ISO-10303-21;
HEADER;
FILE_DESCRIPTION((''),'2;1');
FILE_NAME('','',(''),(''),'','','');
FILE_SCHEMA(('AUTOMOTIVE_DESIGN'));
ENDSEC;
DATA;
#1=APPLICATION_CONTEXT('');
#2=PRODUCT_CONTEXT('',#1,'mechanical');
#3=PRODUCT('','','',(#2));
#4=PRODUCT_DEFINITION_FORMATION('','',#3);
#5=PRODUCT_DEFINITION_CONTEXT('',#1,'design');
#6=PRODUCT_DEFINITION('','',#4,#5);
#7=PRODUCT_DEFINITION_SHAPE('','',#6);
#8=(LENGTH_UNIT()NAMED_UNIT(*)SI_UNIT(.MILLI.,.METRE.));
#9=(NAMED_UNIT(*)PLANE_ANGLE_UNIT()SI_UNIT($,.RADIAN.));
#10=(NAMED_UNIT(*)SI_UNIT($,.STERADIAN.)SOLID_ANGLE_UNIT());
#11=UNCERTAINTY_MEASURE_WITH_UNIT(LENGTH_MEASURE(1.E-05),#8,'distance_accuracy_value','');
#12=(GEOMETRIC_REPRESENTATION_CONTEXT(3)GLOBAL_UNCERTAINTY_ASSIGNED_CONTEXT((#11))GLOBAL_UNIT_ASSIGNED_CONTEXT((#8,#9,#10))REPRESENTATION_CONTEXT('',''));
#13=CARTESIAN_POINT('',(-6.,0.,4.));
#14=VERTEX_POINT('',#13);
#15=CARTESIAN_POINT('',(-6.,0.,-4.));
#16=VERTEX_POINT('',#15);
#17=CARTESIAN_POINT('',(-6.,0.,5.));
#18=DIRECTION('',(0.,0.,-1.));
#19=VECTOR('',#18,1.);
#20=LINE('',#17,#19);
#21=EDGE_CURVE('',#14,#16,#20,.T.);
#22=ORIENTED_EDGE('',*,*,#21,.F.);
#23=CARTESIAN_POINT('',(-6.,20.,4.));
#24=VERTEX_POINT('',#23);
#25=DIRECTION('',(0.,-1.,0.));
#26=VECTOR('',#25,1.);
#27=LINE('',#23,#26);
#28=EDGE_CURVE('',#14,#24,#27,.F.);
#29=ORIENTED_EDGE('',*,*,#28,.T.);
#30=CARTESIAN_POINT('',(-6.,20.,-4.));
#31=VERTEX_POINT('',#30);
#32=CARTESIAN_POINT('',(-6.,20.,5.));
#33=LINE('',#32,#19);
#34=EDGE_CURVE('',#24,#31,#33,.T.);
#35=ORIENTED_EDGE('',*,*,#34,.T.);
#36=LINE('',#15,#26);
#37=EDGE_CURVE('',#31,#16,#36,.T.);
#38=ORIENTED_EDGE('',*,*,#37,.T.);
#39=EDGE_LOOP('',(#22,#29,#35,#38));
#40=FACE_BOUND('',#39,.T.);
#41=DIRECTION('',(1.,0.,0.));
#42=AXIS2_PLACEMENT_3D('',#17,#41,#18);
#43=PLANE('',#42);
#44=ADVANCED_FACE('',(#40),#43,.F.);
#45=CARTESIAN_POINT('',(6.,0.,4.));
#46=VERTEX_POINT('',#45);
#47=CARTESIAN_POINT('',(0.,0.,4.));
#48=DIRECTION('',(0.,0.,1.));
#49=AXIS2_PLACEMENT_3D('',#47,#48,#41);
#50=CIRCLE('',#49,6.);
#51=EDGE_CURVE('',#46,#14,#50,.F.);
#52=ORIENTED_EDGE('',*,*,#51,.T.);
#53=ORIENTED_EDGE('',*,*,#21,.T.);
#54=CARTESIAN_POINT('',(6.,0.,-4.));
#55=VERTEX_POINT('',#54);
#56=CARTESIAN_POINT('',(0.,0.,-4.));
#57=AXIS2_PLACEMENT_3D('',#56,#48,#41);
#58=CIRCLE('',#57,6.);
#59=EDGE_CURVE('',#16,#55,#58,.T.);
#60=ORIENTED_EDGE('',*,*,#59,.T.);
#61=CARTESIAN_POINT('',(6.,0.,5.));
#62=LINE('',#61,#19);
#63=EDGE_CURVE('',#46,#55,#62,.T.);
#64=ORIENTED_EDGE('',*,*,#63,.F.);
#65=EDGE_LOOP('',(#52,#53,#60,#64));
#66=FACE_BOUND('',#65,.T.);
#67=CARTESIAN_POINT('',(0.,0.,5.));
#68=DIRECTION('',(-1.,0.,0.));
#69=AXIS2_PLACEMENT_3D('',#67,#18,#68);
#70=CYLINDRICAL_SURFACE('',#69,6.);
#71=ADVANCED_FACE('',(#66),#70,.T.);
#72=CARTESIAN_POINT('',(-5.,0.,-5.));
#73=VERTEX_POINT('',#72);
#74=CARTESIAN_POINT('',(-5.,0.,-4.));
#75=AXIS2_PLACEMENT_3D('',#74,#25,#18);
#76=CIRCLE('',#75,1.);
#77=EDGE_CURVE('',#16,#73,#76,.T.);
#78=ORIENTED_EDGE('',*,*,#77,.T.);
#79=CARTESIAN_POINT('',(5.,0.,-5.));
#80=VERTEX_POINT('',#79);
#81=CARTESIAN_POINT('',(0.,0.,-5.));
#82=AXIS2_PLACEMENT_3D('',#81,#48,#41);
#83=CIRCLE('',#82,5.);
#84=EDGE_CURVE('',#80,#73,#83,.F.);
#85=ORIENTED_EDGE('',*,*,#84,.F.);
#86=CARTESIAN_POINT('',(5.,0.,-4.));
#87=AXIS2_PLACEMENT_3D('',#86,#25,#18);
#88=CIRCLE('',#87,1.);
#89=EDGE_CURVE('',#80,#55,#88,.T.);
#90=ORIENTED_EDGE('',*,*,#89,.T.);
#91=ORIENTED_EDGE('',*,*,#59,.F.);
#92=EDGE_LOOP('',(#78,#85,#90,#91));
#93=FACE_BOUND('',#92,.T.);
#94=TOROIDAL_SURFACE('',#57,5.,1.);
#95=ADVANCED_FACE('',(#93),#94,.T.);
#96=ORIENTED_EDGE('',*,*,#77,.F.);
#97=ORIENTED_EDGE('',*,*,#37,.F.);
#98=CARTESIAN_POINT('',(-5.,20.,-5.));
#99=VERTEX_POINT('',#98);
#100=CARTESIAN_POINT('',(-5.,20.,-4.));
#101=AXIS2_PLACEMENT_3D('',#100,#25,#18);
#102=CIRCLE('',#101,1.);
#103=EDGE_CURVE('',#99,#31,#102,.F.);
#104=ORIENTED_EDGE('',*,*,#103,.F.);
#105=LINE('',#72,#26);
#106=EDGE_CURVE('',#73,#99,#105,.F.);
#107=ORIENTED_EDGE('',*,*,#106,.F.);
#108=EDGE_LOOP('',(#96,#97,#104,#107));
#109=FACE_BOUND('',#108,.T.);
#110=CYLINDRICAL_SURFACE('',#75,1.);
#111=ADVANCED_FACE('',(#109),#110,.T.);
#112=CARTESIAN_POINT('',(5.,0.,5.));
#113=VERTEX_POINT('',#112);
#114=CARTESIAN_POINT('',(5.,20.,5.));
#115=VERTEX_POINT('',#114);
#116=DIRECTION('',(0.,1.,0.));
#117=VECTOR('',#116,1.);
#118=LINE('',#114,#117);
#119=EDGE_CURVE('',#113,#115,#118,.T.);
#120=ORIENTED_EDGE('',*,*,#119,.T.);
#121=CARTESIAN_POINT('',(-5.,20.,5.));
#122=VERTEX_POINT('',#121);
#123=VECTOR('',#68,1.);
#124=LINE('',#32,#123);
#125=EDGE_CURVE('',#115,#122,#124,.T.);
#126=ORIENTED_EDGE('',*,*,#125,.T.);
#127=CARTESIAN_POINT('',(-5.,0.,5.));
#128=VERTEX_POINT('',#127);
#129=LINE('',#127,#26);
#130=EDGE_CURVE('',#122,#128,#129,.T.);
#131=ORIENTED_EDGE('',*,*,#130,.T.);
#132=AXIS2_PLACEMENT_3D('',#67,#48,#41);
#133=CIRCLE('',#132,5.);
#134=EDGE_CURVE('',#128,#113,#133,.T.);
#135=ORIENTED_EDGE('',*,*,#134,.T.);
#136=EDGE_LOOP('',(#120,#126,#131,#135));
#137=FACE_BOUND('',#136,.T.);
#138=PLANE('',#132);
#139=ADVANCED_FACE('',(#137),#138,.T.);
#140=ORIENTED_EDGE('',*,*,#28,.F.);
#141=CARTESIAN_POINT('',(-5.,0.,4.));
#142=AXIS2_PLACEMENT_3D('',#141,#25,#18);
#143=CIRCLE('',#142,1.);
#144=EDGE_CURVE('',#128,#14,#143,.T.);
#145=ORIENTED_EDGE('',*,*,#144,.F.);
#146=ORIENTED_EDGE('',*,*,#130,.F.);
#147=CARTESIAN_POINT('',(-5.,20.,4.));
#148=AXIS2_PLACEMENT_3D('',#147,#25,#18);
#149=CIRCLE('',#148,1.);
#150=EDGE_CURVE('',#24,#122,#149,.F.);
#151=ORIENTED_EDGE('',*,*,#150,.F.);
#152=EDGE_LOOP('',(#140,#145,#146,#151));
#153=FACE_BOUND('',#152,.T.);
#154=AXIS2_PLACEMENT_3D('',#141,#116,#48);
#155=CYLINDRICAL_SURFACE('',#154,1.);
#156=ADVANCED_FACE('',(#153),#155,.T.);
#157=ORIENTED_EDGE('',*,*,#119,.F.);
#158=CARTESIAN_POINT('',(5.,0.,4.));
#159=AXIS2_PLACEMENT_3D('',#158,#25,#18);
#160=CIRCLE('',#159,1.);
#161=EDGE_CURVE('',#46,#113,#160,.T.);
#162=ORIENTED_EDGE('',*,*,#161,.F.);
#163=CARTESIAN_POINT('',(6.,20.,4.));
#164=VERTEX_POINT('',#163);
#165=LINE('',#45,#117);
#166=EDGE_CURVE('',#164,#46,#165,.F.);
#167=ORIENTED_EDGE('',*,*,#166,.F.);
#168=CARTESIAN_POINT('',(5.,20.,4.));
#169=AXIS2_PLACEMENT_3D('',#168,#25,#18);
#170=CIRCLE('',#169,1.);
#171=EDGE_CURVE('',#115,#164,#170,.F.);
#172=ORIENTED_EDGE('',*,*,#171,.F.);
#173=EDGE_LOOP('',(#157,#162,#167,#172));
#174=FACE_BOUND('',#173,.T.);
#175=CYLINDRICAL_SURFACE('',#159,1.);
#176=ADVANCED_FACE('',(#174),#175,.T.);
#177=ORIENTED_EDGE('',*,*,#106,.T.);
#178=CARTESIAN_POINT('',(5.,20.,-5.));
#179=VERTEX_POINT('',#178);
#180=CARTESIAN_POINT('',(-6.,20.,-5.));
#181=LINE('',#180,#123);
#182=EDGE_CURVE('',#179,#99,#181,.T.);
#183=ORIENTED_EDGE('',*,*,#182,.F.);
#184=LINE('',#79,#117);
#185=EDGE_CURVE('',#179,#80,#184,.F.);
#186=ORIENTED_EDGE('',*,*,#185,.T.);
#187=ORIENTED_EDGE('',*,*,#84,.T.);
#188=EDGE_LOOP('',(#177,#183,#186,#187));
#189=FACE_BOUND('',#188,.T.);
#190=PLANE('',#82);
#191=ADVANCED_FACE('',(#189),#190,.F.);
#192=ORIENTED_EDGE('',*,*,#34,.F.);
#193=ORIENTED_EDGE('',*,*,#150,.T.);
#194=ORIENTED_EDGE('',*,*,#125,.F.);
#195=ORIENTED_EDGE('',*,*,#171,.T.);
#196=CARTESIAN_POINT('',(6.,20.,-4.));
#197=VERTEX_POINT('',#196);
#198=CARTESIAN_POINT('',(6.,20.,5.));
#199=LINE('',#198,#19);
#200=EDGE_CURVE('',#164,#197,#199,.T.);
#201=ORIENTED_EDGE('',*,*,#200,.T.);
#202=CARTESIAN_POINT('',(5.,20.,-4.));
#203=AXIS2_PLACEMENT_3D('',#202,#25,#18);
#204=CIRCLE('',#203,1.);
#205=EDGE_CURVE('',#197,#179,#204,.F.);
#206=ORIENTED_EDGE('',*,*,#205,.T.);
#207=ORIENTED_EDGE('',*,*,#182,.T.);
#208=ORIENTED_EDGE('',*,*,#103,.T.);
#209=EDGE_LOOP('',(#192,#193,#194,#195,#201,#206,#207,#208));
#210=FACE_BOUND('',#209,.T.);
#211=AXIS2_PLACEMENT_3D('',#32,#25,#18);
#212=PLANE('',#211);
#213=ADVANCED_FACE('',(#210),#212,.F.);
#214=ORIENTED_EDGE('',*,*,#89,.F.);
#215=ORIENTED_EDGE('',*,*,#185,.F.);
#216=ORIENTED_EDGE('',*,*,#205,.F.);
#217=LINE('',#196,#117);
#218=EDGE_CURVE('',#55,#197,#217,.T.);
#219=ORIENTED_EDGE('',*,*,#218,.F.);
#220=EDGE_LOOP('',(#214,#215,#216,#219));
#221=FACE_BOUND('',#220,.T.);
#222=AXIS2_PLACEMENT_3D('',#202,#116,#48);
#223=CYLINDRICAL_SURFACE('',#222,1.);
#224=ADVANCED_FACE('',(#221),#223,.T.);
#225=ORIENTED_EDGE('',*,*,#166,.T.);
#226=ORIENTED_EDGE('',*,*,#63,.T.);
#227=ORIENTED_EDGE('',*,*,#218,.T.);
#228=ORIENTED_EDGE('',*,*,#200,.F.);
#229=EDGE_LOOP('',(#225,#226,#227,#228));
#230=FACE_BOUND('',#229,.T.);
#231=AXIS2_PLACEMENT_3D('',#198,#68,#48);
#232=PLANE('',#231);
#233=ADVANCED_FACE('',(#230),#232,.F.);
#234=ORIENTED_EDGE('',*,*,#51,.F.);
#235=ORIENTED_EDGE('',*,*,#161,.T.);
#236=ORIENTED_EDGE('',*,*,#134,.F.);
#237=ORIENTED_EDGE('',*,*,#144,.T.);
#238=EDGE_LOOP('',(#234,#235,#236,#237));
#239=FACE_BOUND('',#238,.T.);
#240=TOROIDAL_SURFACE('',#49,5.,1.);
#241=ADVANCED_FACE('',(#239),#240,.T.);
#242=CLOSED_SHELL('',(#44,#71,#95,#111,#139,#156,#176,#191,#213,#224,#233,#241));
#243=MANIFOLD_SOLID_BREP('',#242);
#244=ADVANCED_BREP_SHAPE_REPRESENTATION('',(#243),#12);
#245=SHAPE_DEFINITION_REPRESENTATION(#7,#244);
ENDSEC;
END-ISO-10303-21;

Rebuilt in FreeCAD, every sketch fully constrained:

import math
import FreeCAD as App
import Part
import Sketcher
Q = App.Units.Quantity


def edges_at(feature, points):
    """Names of the edges that pass closest to the given points."""
    edges = feature.Shape.Edges
    near = lambda p: min(range(len(edges)), key=lambda i: edges[i].distToShape(Part.Vertex(*p))[0])
    return sorted({f"Edge{near(p) + 1}" for p in points})

doc = App.newDocument("Part")
body = doc.addObject("PartDesign::Body", "Body")

sketch1 = doc.addObject("Sketcher::SketchObject", "Sketch")
body.addObject(sketch1)
sketch1.AttachmentSupport = (doc.XY_Plane, [""])
sketch1.MapMode = "FlatFace"
sketch1.addGeometry([
    Part.LineSegment(App.Vector(-6, 20, 0), App.Vector(-6, 0, 0)),
    Part.ArcOfCircle(Part.Circle(App.Vector(0, 0, 0), App.Vector(0, 0, 1), 6), math.radians(180), math.radians(360)),
    Part.LineSegment(App.Vector(6, 0, 0), App.Vector(6, 20, 0)),
    Part.LineSegment(App.Vector(6, 20, 0), App.Vector(-6, 20, 0)),
], False)
sketch1.addConstraint([
    Sketcher.Constraint("Tangent", 0, 2, 1, 1),
    Sketcher.Constraint("Tangent", 1, 2, 2, 1),
    Sketcher.Constraint("Coincident", 2, 2, 3, 1),
    Sketcher.Constraint("Coincident", 3, 2, 0, 1),
    Sketcher.Constraint("Vertical", 0),
    Sketcher.Constraint("Vertical", 2),
    Sketcher.Constraint("Horizontal", 3),
    Sketcher.Constraint("Coincident", 1, 3, -1, 1),
    Sketcher.Constraint("Radius", 1, Q("6 mm")),
    Sketcher.Constraint("DistanceY", 0, 2, 0, 1, Q("20 mm")),
])
pad1 = doc.addObject("PartDesign::Pad", "Pad")
body.addObject(pad1)
pad1.Profile = sketch1
pad1.Length = 10
pad1.Midplane = True
doc.recompute()

fillet = doc.addObject("PartDesign::Fillet", "Fillet")
body.addObject(fillet)
fillet.Base = (pad1, edges_at(pad1, [
    (-6, 10, 5),
    (0, -6, 5),
    (-6, 10, -5),
    (6, 10, -5),
    (0, -6, -5),
    (6, 10, 5),
]))
fillet.Radius = 1

doc.recompute()
